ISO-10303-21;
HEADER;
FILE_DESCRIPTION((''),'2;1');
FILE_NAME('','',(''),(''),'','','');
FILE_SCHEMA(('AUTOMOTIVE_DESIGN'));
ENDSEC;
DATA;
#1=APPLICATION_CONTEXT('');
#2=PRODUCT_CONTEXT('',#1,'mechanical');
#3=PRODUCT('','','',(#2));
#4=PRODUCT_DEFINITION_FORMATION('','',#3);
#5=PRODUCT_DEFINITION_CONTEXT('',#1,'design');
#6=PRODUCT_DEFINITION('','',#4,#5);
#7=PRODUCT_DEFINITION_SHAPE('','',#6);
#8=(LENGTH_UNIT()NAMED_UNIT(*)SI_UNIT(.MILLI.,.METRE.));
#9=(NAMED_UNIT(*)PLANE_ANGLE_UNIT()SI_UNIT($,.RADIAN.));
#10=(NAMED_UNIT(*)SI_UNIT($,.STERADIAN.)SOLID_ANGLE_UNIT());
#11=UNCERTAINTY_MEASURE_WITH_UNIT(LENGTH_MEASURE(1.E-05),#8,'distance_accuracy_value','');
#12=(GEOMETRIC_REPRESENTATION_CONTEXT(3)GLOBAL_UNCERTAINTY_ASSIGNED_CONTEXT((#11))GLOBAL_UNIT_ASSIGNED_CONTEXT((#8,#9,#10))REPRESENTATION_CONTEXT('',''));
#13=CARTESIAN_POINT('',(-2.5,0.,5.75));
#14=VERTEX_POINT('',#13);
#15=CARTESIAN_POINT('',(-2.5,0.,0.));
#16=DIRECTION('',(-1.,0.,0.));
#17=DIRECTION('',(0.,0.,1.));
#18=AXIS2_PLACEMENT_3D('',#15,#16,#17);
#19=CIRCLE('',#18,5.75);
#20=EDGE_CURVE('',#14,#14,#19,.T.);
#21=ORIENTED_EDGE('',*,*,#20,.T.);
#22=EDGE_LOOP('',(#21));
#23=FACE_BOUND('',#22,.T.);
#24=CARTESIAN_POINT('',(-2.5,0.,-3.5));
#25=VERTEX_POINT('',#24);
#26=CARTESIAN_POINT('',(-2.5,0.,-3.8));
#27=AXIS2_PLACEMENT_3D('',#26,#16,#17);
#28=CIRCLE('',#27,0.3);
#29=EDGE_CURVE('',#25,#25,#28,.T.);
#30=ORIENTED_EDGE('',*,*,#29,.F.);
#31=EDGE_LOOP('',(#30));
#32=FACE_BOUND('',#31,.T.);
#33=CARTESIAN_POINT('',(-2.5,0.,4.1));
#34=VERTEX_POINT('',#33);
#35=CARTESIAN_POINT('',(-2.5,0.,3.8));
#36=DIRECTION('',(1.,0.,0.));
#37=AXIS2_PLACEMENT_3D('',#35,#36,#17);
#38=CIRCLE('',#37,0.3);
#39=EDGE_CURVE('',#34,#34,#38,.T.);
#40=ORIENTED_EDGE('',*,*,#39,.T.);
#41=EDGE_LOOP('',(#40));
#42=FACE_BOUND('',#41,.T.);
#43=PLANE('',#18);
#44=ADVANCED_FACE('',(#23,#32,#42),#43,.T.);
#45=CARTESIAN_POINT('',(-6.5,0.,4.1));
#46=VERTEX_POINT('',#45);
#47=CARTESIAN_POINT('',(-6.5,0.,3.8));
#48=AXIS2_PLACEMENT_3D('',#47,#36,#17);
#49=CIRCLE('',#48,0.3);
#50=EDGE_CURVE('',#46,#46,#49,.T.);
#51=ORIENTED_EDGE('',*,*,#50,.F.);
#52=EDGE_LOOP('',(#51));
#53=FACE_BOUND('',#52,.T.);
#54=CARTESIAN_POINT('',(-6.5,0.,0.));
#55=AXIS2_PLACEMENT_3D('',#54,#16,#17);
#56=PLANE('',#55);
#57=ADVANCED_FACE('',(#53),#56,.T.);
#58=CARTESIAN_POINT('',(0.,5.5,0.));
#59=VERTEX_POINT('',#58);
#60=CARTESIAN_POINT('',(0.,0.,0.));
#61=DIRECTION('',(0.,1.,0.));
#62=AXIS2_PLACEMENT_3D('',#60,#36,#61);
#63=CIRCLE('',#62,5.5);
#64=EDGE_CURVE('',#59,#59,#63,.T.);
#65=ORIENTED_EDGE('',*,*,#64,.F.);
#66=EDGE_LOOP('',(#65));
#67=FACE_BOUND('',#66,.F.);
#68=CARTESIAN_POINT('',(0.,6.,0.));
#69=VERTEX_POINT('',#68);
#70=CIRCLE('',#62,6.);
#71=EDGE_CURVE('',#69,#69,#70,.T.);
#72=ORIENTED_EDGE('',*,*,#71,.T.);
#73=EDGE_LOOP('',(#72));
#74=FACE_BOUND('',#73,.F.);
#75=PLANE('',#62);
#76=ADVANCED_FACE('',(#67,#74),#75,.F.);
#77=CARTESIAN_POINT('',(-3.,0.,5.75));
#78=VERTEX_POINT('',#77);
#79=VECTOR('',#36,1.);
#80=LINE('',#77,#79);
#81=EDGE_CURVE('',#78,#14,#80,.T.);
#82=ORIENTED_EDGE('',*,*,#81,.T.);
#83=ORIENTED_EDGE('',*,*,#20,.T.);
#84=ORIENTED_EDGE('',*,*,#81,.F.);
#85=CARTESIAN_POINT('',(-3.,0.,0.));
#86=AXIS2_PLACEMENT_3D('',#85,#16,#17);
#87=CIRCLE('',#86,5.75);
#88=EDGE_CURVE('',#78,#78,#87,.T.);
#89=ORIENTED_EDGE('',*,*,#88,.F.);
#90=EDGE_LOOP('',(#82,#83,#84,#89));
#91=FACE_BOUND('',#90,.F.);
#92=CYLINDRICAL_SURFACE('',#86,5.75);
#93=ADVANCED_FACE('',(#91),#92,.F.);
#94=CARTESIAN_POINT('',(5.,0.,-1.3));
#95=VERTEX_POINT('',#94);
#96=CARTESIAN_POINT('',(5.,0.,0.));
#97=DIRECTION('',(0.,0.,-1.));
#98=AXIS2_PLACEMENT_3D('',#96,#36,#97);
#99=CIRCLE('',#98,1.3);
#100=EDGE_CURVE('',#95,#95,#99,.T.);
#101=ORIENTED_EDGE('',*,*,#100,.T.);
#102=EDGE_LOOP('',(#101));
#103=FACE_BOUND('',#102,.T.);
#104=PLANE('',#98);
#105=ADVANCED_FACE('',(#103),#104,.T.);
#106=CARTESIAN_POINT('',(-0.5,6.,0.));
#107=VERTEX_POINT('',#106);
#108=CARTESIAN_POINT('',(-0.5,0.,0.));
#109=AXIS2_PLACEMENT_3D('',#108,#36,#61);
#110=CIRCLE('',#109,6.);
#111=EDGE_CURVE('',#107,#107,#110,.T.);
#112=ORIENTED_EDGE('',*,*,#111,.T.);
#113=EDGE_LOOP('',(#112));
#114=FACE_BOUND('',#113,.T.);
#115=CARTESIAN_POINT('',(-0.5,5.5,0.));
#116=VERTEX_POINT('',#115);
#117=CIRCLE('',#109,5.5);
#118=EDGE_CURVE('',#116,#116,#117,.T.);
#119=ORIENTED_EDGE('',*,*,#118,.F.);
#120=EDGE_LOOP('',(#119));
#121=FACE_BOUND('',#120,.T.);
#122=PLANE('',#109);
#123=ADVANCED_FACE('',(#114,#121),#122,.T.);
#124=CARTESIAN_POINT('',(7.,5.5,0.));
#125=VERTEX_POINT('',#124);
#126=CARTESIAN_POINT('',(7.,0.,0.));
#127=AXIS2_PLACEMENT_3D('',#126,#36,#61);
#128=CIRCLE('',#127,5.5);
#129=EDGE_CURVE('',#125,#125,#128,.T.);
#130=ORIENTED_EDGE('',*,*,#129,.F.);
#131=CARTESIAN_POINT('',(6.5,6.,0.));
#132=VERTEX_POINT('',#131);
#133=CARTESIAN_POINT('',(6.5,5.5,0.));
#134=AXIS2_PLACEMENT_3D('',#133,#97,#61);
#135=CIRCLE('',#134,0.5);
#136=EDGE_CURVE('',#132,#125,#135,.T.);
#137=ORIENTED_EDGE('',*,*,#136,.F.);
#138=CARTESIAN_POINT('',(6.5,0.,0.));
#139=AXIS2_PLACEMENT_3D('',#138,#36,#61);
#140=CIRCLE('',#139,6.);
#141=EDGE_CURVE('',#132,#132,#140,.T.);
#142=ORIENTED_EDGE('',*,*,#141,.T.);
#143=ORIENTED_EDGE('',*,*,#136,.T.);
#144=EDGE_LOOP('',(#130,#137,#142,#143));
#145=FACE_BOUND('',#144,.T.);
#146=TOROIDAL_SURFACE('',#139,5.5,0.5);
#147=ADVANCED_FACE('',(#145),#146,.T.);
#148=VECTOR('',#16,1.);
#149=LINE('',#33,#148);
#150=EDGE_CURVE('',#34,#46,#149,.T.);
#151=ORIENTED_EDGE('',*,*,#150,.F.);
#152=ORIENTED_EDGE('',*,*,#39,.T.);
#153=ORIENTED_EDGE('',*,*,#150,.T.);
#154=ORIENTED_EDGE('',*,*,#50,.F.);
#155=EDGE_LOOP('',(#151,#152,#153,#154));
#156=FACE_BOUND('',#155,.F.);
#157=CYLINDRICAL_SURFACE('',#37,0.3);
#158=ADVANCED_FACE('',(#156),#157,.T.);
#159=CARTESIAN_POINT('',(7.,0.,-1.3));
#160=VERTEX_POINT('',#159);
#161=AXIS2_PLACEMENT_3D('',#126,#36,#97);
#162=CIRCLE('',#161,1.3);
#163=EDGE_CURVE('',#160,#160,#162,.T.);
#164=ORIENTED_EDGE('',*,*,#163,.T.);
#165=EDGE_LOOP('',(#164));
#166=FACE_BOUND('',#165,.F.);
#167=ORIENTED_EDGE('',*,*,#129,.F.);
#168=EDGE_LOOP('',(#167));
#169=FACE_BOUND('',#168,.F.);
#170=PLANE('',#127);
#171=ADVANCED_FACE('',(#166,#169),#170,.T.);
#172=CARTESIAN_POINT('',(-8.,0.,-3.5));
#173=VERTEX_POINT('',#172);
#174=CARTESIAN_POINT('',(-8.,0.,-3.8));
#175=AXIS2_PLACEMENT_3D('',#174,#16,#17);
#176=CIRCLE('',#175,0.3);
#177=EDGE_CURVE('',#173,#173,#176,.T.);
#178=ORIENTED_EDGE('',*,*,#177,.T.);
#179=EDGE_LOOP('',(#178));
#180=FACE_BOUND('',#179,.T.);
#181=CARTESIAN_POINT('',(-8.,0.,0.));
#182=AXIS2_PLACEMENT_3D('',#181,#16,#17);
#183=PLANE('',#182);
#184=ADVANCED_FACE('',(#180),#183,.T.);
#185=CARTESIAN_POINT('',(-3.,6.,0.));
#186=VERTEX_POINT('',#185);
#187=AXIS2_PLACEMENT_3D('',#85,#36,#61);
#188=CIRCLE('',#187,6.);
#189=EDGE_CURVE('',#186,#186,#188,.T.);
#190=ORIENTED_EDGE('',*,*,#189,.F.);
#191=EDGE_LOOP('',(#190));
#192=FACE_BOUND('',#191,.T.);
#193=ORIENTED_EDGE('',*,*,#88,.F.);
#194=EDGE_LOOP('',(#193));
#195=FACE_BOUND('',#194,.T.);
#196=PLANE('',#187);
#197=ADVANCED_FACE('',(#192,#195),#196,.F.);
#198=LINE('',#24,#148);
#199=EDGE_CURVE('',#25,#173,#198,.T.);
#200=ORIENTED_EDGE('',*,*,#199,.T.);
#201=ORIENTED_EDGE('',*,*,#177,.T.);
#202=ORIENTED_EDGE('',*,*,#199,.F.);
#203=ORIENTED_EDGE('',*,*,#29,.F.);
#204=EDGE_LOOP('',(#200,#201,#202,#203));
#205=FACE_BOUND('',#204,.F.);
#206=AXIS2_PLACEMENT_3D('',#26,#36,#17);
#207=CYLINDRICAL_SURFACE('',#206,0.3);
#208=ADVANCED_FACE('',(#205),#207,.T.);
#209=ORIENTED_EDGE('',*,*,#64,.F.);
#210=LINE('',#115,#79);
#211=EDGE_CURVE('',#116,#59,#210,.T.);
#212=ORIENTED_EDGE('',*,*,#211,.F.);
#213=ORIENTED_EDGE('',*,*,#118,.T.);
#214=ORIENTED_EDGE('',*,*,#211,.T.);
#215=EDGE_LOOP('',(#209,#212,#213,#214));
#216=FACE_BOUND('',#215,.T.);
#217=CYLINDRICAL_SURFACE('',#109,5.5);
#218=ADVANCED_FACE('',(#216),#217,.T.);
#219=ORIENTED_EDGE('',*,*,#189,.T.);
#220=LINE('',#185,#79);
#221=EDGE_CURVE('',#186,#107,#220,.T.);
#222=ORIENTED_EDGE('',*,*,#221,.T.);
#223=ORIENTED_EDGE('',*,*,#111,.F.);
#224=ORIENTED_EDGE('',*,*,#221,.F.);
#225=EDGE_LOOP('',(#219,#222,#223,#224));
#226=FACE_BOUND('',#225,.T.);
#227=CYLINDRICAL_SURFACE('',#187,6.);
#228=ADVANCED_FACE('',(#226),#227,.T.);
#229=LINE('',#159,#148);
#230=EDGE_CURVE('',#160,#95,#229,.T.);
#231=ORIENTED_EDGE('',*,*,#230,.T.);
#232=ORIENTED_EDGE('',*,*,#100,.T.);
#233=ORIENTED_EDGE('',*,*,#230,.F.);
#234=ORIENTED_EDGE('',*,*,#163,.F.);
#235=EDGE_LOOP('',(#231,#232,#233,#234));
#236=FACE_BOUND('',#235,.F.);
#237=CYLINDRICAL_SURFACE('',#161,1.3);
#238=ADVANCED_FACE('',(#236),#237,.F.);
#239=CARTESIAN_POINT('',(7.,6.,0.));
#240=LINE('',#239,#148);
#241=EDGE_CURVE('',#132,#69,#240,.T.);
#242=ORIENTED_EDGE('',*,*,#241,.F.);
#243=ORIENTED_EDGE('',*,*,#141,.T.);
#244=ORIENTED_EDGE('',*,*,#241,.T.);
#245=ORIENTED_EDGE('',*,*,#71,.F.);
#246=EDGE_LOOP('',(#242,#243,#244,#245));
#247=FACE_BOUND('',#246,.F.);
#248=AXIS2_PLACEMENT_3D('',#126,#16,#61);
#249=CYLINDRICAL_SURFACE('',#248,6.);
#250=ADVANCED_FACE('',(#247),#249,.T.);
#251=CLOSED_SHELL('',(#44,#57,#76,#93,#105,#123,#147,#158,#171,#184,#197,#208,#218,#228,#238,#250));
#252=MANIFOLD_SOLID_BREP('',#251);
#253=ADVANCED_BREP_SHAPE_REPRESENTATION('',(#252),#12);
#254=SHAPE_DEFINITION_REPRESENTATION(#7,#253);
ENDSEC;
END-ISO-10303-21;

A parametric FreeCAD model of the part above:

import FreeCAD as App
import Part
import Sketcher
Q = App.Units.Quantity


def edges_at(feature, points):
    """Names of the edges that pass closest to the given points."""
    edges = feature.Shape.Edges
    near = lambda p: min(range(len(edges)), key=lambda i: edges[i].distToShape(Part.Vertex(*p))[0])
    return sorted({f"Edge{near(p) + 1}" for p in points})


def add_polygon(sketch, points):
    """Adds a closed chain of lines whose ends are joined by coincident constraints."""
    first, n = sketch.GeometryCount, len(points)
    for a, b in zip(points, points[1:] + points[:1]):
        sketch.addGeometry(Part.LineSegment(App.Vector(*a, 0), App.Vector(*b, 0)), False)
    for i in range(n):
        sketch.addConstraint(Sketcher.Constraint("Coincident", first + i, 2, first + (i + 1) % n, 1))

doc = App.newDocument("Part")
body = doc.addObject("PartDesign::Body", "Body")

# Sketch on XY plane
sketch1 = body.newObject("Sketcher::SketchObject", "Sketch")
sketch1.AttachmentSupport = (doc.getObject("XY_Plane"), [""])
sketch1.MapMode = "FlatFace"
add_polygon(sketch1, [(0, 6), (0, 5.5), (-0.5, 5.5), (-0.5, 6), (-3, 6), (-3, 0), (7, 0), (7, 6)])  # lines 0-7
sketch1.addConstraint([
    Sketcher.Constraint("Vertical", 0),
    Sketcher.Constraint("Horizontal", 1),
    Sketcher.Constraint("Vertical", 2),
    Sketcher.Constraint("Horizontal", 3),
    Sketcher.Constraint("Vertical", 4),
    Sketcher.Constraint("Horizontal", 5),
    Sketcher.Constraint("Vertical", 6),
    Sketcher.Constraint("Horizontal", 7),
    Sketcher.Constraint("PointOnObject", 0, 2, -2),
    Sketcher.Constraint("PointOnObject", 4, 2, -1),
    Sketcher.Constraint("Horizontal", 3, 2, 6, 2),
    Sketcher.Constraint("Equal", 1, 0),
    Sketcher.Constraint("DistanceX", 5, 1, 5, 2, Q("10 mm")),
    Sketcher.Constraint("DistanceX", 7, 2, 7, 1, Q("7 mm")),
    Sketcher.Constraint("DistanceY", 4, 2, 4, 1, Q("6 mm")),
    Sketcher.Constraint("DistanceX", 1, 2, 1, 1, Q("0.5 mm")),
])
revolution = body.newObject("PartDesign::Revolution", "Revolution")
revolution.Profile = sketch1
revolution.ReferenceAxis = (sketch1, ["H_Axis"])
revolution.Angle = 360

# Sketch on YZ plane
sketch2 = body.newObject("Sketcher::SketchObject", "Sketch001")
sketch2.AttachmentSupport = (doc.getObject("YZ_Plane"), [""])
sketch2.MapMode = "FlatFace"
sketch2.AttachmentOffset = App.Placement(App.Vector(0, 0, -3), App.Rotation())
sketch2.addGeometry(Part.Circle(App.Vector(0, 0, 0), App.Vector(0, 0, 1), 6), False)
sketch2.addConstraint([
    Sketcher.Constraint("Coincident", 0, 3, -1, 1),
    Sketcher.Constraint("Diameter", 0, Q("11.5 mm")),
])
pocket1 = body.newObject("PartDesign::Pocket", "Pocket")
pocket1.Profile = sketch2
pocket1.Length = 0.5
pocket1.Reversed = True

# Sketch on YZ plane
sketch3 = body.newObject("Sketcher::SketchObject", "Sketch002")
sketch3.AttachmentSupport = (doc.getObject("YZ_Plane"), [""])
sketch3.MapMode = "FlatFace"
sketch3.AttachmentOffset = App.Placement(App.Vector(0, 0, -2.5), App.Rotation())
sketch3.addGeometry(Part.Circle(App.Vector(0, 3.8, 0), App.Vector(0, 0, 1), 0.3), False)
sketch3.addConstraint([
    Sketcher.Constraint("PointOnObject", 0, 3, -2),
    Sketcher.Constraint("Diameter", 0, Q("0.6 mm")),
    Sketcher.Constraint("DistanceY", -1, 1, 0, 3, Q("3.8 mm")),
])
pad1 = body.newObject("PartDesign::Pad", "Pad")
pad1.Profile = sketch3
pad1.Length = 4
pad1.Reversed = True

# Sketch on YZ plane
sketch4 = body.newObject("Sketcher::SketchObject", "Sketch003")
sketch4.AttachmentSupport = (doc.getObject("YZ_Plane"), [""])
sketch4.MapMode = "FlatFace"
sketch4.AttachmentOffset = App.Placement(App.Vector(0, 0, -2.5), App.Rotation())
sketch4.addGeometry(Part.Circle(App.Vector(0, -3.8, 0), App.Vector(0, 0, 1), 0.3), False)
sketch4.addConstraint([
    Sketcher.Constraint("PointOnObject", 0, 3, -2),
    Sketcher.Constraint("Diameter", 0, Q("0.6 mm")),
    Sketcher.Constraint("DistanceY", 0, 3, -1, 1, Q("3.8 mm")),
])
pad2 = body.newObject("PartDesign::Pad", "Pad001")
pad2.Profile = sketch4
pad2.Length = 5.5
pad2.Reversed = True

# Sketch on YZ plane
sketch5 = body.newObject("Sketcher::SketchObject", "Sketch004")
sketch5.AttachmentSupport = (doc.getObject("YZ_Plane"), [""])
sketch5.MapMode = "FlatFace"
sketch5.AttachmentOffset = App.Placement(App.Vector(0, 0, 7), App.Rotation())
sketch5.addGeometry(Part.Circle(App.Vector(0, 0, 0), App.Vector(0, 0, 1), 1.3), False)
sketch5.addConstraint([
    Sketcher.Constraint("Coincident", 0, 3, -1, 1),
    Sketcher.Constraint("Diameter", 0, Q("2.6 mm")),
])
pocket2 = body.newObject("PartDesign::Pocket", "Pocket001")
pocket2.Profile = sketch5
pocket2.Length = 2
doc.recompute()

fillet = body.newObject("PartDesign::Fillet", "Fillet")
fillet.Base = (pocket2, edges_at(pocket2, [(7, -6, 0)]))
fillet.Radius = 0.5

doc.recompute()
